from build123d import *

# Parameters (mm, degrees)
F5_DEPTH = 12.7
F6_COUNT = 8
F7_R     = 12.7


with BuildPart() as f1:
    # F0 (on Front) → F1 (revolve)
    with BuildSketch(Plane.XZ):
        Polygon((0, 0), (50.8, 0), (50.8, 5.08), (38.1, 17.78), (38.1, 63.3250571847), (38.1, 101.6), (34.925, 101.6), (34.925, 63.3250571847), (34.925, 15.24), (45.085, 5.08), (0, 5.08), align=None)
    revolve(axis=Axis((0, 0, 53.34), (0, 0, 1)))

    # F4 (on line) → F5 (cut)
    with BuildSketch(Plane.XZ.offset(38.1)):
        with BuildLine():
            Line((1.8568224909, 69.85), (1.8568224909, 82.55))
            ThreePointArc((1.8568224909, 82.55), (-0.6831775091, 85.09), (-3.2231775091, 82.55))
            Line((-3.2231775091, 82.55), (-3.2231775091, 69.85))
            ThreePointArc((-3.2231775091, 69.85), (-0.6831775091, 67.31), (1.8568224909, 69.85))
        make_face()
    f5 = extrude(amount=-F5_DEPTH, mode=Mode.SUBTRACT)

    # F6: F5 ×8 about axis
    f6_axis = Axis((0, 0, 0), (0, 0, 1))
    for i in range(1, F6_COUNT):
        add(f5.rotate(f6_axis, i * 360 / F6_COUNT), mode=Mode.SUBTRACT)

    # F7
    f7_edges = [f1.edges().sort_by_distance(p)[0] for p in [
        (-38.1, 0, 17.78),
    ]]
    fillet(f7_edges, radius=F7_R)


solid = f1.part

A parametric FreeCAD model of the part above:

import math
import FreeCAD as App
import Part
import Sketcher
Q = App.Units.Quantity


def edges_at(feature, points):
    """Names of the edges that pass closest to the given points."""
    edges = feature.Shape.Edges
    near = lambda p: min(range(len(edges)), key=lambda i: edges[i].distToShape(Part.Vertex(*p))[0])
    return sorted({f"Edge{near(p) + 1}" for p in points})

doc = App.newDocument("Part")
body = doc.addObject("PartDesign::Body", "Body")

# Sketch on XZ plane
sketch1 = doc.addObject("Sketcher::SketchObject", "Sketch")
body.addObject(sketch1)
sketch1.AttachmentSupport = (doc.XZ_Plane, [""])
sketch1.MapMode = "FlatFace"
sketch1.addGeometry([
    Part.LineSegment(App.Vector(0, 0, 0), App.Vector(50.8, 0, 0)),  # 0
    Part.LineSegment(App.Vector(50.8, 0, 0), App.Vector(50.8, 5.08, 0)),  # 1
    Part.LineSegment(App.Vector(50.8, 5.08, 0), App.Vector(38.1, 17.78, 0)),  # 2
    Part.LineSegment(App.Vector(38.1, 17.78, 0), App.Vector(38.1, 101.6, 0)),  # 3
    Part.LineSegment(App.Vector(38.1, 101.6, 0), App.Vector(34.925, 101.6, 0)),  # 4
    Part.LineSegment(App.Vector(34.925, 101.6, 0), App.Vector(34.925, 15.24, 0)),  # 5
    Part.LineSegment(App.Vector(34.925, 15.24, 0), App.Vector(45.085, 5.08, 0)),  # 6
    Part.LineSegment(App.Vector(45.085, 5.08, 0), App.Vector(0, 5.08, 0)),  # 7
    Part.LineSegment(App.Vector(0, 5.08, 0), App.Vector(0, 0, 0)),  # 8
], False)
sketch1.addConstraint([
    Sketcher.Constraint("Coincident", 0, 2, 1, 1),
    Sketcher.Constraint("Coincident", 1, 2, 2, 1),
    Sketcher.Constraint("Coincident", 2, 2, 3, 1),
    Sketcher.Constraint("Coincident", 3, 2, 4, 1),
    Sketcher.Constraint("Coincident", 4, 2, 5, 1),
    Sketcher.Constraint("Coincident", 5, 2, 6, 1),
    Sketcher.Constraint("Coincident", 6, 2, 7, 1),
    Sketcher.Constraint("Coincident", 7, 2, 8, 1),
    Sketcher.Constraint("Coincident", 8, 2, 0, 1),
    Sketcher.Constraint("Horizontal", 0),
    Sketcher.Constraint("Vertical", 1),
    Sketcher.Constraint("Vertical", 3),
    Sketcher.Constraint("Horizontal", 4),
    Sketcher.Constraint("Vertical", 5),
    Sketcher.Constraint("Horizontal", 7),
    Sketcher.Constraint("Vertical", 8),
    Sketcher.Constraint("Coincident", 8, 2, -1, 1),
    Sketcher.Constraint("Parallel", 2, 6),
    Sketcher.Constraint("Horizontal", 1, 2, 6, 2),
    Sketcher.Constraint("DistanceX", 0, 1, 0, 2, Q("2 in")),
    Sketcher.Constraint("DistanceY", 1, 1, 1, 2, Q("0.2 in")),
    Sketcher.Constraint("DistanceY", 3, 1, 3, 2, Q("3.3 in")),
    Sketcher.Constraint("DistanceY", 5, 2, 5, 1, Q("3.4 in")),
    Sketcher.Constraint("DistanceY", -1, 1, 3, 2, Q("4 in")),
    Sketcher.Constraint("Angle", 2, Q("135 deg")),
    Sketcher.Constraint("DistanceX", 4, 2, 4, 1, Q("0.125 in")),
])
revolution = doc.addObject("PartDesign::Revolution", "Revolution")
body.addObject(revolution)
revolution.Profile = sketch1
revolution.ReferenceAxis = (sketch1, ["V_Axis"])
revolution.Angle = 360

# Sketch on XZ plane
sketch2 = doc.addObject("Sketcher::SketchObject", "Sketch001")
body.addObject(sketch2)
sketch2.AttachmentSupport = (doc.XZ_Plane, [""])
sketch2.MapMode = "FlatFace"
sketch2.AttachmentOffset = App.Placement(App.Vector(0, 0, 1.5 * 25.4), App.Rotation())
sketch2.addGeometry([
    Part.LineSegment(App.Vector(1.856822, 69.85, 0), App.Vector(1.856822, 82.55, 0)),
    Part.ArcOfCircle(Part.Circle(App.Vector(-0.683178, 82.55, 0), App.Vector(0, 0, 1), 2.54), math.radians(0), math.radians(180)),
    Part.LineSegment(App.Vector(-3.223178, 82.55, 0), App.Vector(-3.223178, 69.85, 0)),
    Part.ArcOfCircle(Part.Circle(App.Vector(-0.683178, 69.85, 0), App.Vector(0, 0, 1), 2.54), math.radians(180), math.radians(360)),
], False)
sketch2.addConstraint([
    Sketcher.Constraint("Tangent", 0, 2, 1, 1),
    Sketcher.Constraint("Tangent", 1, 2, 2, 1),
    Sketcher.Constraint("Tangent", 2, 2, 3, 1),
    Sketcher.Constraint("Tangent", 3, 2, 0, 1),
    Sketcher.Constraint("Vertical", 0),
    Sketcher.Constraint("Vertical", 2),
    Sketcher.Constraint("Radius", 1, Q("0.1 in")),
    Sketcher.Constraint("DistanceY", 0, 1, 0, 2, Q("0.5 in")),
    Sketcher.Constraint("DistanceY", -1, 1, 1, 3, Q("3.25 in")),
    Sketcher.Constraint("DistanceX", 1, 3, -1, 1, Q("0.683178 mm")),
])
pocket1 = doc.addObject("PartDesign::Pocket", "Pocket")
body.addObject(pocket1)
pocket1.Profile = sketch2
pocket1.Length = Q("0.5 in")
doc.recompute()

polarpattern = doc.addObject("PartDesign::PolarPattern", "PolarPattern")
body.addObject(polarpattern)
polarpattern.Originals = [pocket1]
polarpattern.Axis = (doc.Z_Axis, [""])
polarpattern.Angle = 360
polarpattern.Occurrences = 8
body.Tip = polarpattern
doc.recompute()

fillet = doc.addObject("PartDesign::Fillet", "Fillet")
body.addObject(fillet)
fillet.Base = (polarpattern, edges_at(polarpattern, [(-38.1, 0, 17.78)]))
fillet.Radius = Q("0.5 in")

doc.recompute()
